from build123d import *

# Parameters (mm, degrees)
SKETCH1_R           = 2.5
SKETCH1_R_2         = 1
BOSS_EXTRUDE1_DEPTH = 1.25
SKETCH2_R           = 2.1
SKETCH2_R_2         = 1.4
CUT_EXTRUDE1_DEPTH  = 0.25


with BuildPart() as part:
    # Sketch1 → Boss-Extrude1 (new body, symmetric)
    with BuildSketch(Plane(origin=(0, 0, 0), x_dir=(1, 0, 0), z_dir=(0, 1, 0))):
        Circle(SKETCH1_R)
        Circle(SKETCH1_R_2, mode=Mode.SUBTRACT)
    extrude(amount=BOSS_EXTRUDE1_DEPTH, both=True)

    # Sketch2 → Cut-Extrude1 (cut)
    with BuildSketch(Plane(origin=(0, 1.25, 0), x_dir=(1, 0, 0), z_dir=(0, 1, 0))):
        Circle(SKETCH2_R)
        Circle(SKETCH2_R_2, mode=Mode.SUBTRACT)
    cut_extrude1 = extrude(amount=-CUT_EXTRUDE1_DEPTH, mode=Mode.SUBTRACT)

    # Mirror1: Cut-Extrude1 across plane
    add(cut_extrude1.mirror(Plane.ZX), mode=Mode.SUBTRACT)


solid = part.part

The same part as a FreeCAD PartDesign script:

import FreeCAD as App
import Part
import Sketcher

doc = App.newDocument("Part")
body = doc.addObject("PartDesign::Body", "Body")

# Sketch on XZ plane
sketch1 = doc.addObject("Sketcher::SketchObject", "Sketch")
body.addObject(sketch1)
sketch1.AttachmentSupport = (doc.XZ_Plane, [""])
sketch1.MapMode = "FlatFace"
sketch1.addGeometry([
    Part.Circle(App.Vector(0, 0, 0), App.Vector(0, 0, 1), 2.5),
    Part.Circle(App.Vector(0, 0, 0), App.Vector(0, 0, 1), 1),
], False)
sketch1.addConstraint([
    Sketcher.Constraint("Coincident", 0, 3, -1, 1),
    Sketcher.Constraint("Coincident", 1, 3, -1, 1),
    Sketcher.Constraint("Diameter", 0, 5.0),
    Sketcher.Constraint("Diameter", 1, 2.0),
])
pad1 = doc.addObject("PartDesign::Pad", "Pad")
body.addObject(pad1)
pad1.Profile = sketch1
pad1.Length = 2.5
pad1.Midplane = True

# Sketch on XZ plane
sketch2 = doc.addObject("Sketcher::SketchObject", "Sketch001")
body.addObject(sketch2)
sketch2.AttachmentSupport = (doc.XZ_Plane, [""])
sketch2.MapMode = "FlatFace"
sketch2.AttachmentOffset = App.Placement(App.Vector(0, 0, -1.25), App.Rotation())
sketch2.addGeometry([
    Part.Circle(App.Vector(0, 0, 0), App.Vector(0, 0, 1), 2.1),
    Part.Circle(App.Vector(0, 0, 0), App.Vector(0, 0, 1), 1.4),
], False)
sketch2.addConstraint([
    Sketcher.Constraint("Coincident", 0, 3, -1, 1),
    Sketcher.Constraint("Coincident", 1, 3, -1, 1),
    Sketcher.Constraint("Diameter", 0, 4.2),
    Sketcher.Constraint("Diameter", 1, 2.8),
])
pocket1 = doc.addObject("PartDesign::Pocket", "Pocket")
body.addObject(pocket1)
pocket1.Profile = sketch2
pocket1.Length = 0.25
pocket1.Reversed = True
doc.recompute()

mirrored = doc.addObject("PartDesign::Mirrored", "Mirrored")
body.addObject(mirrored)
mirrored.Originals = [pocket1]
mirrored.MirrorPlane = (doc.XZ_Plane, [""])
body.Tip = mirrored

doc.recompute()
